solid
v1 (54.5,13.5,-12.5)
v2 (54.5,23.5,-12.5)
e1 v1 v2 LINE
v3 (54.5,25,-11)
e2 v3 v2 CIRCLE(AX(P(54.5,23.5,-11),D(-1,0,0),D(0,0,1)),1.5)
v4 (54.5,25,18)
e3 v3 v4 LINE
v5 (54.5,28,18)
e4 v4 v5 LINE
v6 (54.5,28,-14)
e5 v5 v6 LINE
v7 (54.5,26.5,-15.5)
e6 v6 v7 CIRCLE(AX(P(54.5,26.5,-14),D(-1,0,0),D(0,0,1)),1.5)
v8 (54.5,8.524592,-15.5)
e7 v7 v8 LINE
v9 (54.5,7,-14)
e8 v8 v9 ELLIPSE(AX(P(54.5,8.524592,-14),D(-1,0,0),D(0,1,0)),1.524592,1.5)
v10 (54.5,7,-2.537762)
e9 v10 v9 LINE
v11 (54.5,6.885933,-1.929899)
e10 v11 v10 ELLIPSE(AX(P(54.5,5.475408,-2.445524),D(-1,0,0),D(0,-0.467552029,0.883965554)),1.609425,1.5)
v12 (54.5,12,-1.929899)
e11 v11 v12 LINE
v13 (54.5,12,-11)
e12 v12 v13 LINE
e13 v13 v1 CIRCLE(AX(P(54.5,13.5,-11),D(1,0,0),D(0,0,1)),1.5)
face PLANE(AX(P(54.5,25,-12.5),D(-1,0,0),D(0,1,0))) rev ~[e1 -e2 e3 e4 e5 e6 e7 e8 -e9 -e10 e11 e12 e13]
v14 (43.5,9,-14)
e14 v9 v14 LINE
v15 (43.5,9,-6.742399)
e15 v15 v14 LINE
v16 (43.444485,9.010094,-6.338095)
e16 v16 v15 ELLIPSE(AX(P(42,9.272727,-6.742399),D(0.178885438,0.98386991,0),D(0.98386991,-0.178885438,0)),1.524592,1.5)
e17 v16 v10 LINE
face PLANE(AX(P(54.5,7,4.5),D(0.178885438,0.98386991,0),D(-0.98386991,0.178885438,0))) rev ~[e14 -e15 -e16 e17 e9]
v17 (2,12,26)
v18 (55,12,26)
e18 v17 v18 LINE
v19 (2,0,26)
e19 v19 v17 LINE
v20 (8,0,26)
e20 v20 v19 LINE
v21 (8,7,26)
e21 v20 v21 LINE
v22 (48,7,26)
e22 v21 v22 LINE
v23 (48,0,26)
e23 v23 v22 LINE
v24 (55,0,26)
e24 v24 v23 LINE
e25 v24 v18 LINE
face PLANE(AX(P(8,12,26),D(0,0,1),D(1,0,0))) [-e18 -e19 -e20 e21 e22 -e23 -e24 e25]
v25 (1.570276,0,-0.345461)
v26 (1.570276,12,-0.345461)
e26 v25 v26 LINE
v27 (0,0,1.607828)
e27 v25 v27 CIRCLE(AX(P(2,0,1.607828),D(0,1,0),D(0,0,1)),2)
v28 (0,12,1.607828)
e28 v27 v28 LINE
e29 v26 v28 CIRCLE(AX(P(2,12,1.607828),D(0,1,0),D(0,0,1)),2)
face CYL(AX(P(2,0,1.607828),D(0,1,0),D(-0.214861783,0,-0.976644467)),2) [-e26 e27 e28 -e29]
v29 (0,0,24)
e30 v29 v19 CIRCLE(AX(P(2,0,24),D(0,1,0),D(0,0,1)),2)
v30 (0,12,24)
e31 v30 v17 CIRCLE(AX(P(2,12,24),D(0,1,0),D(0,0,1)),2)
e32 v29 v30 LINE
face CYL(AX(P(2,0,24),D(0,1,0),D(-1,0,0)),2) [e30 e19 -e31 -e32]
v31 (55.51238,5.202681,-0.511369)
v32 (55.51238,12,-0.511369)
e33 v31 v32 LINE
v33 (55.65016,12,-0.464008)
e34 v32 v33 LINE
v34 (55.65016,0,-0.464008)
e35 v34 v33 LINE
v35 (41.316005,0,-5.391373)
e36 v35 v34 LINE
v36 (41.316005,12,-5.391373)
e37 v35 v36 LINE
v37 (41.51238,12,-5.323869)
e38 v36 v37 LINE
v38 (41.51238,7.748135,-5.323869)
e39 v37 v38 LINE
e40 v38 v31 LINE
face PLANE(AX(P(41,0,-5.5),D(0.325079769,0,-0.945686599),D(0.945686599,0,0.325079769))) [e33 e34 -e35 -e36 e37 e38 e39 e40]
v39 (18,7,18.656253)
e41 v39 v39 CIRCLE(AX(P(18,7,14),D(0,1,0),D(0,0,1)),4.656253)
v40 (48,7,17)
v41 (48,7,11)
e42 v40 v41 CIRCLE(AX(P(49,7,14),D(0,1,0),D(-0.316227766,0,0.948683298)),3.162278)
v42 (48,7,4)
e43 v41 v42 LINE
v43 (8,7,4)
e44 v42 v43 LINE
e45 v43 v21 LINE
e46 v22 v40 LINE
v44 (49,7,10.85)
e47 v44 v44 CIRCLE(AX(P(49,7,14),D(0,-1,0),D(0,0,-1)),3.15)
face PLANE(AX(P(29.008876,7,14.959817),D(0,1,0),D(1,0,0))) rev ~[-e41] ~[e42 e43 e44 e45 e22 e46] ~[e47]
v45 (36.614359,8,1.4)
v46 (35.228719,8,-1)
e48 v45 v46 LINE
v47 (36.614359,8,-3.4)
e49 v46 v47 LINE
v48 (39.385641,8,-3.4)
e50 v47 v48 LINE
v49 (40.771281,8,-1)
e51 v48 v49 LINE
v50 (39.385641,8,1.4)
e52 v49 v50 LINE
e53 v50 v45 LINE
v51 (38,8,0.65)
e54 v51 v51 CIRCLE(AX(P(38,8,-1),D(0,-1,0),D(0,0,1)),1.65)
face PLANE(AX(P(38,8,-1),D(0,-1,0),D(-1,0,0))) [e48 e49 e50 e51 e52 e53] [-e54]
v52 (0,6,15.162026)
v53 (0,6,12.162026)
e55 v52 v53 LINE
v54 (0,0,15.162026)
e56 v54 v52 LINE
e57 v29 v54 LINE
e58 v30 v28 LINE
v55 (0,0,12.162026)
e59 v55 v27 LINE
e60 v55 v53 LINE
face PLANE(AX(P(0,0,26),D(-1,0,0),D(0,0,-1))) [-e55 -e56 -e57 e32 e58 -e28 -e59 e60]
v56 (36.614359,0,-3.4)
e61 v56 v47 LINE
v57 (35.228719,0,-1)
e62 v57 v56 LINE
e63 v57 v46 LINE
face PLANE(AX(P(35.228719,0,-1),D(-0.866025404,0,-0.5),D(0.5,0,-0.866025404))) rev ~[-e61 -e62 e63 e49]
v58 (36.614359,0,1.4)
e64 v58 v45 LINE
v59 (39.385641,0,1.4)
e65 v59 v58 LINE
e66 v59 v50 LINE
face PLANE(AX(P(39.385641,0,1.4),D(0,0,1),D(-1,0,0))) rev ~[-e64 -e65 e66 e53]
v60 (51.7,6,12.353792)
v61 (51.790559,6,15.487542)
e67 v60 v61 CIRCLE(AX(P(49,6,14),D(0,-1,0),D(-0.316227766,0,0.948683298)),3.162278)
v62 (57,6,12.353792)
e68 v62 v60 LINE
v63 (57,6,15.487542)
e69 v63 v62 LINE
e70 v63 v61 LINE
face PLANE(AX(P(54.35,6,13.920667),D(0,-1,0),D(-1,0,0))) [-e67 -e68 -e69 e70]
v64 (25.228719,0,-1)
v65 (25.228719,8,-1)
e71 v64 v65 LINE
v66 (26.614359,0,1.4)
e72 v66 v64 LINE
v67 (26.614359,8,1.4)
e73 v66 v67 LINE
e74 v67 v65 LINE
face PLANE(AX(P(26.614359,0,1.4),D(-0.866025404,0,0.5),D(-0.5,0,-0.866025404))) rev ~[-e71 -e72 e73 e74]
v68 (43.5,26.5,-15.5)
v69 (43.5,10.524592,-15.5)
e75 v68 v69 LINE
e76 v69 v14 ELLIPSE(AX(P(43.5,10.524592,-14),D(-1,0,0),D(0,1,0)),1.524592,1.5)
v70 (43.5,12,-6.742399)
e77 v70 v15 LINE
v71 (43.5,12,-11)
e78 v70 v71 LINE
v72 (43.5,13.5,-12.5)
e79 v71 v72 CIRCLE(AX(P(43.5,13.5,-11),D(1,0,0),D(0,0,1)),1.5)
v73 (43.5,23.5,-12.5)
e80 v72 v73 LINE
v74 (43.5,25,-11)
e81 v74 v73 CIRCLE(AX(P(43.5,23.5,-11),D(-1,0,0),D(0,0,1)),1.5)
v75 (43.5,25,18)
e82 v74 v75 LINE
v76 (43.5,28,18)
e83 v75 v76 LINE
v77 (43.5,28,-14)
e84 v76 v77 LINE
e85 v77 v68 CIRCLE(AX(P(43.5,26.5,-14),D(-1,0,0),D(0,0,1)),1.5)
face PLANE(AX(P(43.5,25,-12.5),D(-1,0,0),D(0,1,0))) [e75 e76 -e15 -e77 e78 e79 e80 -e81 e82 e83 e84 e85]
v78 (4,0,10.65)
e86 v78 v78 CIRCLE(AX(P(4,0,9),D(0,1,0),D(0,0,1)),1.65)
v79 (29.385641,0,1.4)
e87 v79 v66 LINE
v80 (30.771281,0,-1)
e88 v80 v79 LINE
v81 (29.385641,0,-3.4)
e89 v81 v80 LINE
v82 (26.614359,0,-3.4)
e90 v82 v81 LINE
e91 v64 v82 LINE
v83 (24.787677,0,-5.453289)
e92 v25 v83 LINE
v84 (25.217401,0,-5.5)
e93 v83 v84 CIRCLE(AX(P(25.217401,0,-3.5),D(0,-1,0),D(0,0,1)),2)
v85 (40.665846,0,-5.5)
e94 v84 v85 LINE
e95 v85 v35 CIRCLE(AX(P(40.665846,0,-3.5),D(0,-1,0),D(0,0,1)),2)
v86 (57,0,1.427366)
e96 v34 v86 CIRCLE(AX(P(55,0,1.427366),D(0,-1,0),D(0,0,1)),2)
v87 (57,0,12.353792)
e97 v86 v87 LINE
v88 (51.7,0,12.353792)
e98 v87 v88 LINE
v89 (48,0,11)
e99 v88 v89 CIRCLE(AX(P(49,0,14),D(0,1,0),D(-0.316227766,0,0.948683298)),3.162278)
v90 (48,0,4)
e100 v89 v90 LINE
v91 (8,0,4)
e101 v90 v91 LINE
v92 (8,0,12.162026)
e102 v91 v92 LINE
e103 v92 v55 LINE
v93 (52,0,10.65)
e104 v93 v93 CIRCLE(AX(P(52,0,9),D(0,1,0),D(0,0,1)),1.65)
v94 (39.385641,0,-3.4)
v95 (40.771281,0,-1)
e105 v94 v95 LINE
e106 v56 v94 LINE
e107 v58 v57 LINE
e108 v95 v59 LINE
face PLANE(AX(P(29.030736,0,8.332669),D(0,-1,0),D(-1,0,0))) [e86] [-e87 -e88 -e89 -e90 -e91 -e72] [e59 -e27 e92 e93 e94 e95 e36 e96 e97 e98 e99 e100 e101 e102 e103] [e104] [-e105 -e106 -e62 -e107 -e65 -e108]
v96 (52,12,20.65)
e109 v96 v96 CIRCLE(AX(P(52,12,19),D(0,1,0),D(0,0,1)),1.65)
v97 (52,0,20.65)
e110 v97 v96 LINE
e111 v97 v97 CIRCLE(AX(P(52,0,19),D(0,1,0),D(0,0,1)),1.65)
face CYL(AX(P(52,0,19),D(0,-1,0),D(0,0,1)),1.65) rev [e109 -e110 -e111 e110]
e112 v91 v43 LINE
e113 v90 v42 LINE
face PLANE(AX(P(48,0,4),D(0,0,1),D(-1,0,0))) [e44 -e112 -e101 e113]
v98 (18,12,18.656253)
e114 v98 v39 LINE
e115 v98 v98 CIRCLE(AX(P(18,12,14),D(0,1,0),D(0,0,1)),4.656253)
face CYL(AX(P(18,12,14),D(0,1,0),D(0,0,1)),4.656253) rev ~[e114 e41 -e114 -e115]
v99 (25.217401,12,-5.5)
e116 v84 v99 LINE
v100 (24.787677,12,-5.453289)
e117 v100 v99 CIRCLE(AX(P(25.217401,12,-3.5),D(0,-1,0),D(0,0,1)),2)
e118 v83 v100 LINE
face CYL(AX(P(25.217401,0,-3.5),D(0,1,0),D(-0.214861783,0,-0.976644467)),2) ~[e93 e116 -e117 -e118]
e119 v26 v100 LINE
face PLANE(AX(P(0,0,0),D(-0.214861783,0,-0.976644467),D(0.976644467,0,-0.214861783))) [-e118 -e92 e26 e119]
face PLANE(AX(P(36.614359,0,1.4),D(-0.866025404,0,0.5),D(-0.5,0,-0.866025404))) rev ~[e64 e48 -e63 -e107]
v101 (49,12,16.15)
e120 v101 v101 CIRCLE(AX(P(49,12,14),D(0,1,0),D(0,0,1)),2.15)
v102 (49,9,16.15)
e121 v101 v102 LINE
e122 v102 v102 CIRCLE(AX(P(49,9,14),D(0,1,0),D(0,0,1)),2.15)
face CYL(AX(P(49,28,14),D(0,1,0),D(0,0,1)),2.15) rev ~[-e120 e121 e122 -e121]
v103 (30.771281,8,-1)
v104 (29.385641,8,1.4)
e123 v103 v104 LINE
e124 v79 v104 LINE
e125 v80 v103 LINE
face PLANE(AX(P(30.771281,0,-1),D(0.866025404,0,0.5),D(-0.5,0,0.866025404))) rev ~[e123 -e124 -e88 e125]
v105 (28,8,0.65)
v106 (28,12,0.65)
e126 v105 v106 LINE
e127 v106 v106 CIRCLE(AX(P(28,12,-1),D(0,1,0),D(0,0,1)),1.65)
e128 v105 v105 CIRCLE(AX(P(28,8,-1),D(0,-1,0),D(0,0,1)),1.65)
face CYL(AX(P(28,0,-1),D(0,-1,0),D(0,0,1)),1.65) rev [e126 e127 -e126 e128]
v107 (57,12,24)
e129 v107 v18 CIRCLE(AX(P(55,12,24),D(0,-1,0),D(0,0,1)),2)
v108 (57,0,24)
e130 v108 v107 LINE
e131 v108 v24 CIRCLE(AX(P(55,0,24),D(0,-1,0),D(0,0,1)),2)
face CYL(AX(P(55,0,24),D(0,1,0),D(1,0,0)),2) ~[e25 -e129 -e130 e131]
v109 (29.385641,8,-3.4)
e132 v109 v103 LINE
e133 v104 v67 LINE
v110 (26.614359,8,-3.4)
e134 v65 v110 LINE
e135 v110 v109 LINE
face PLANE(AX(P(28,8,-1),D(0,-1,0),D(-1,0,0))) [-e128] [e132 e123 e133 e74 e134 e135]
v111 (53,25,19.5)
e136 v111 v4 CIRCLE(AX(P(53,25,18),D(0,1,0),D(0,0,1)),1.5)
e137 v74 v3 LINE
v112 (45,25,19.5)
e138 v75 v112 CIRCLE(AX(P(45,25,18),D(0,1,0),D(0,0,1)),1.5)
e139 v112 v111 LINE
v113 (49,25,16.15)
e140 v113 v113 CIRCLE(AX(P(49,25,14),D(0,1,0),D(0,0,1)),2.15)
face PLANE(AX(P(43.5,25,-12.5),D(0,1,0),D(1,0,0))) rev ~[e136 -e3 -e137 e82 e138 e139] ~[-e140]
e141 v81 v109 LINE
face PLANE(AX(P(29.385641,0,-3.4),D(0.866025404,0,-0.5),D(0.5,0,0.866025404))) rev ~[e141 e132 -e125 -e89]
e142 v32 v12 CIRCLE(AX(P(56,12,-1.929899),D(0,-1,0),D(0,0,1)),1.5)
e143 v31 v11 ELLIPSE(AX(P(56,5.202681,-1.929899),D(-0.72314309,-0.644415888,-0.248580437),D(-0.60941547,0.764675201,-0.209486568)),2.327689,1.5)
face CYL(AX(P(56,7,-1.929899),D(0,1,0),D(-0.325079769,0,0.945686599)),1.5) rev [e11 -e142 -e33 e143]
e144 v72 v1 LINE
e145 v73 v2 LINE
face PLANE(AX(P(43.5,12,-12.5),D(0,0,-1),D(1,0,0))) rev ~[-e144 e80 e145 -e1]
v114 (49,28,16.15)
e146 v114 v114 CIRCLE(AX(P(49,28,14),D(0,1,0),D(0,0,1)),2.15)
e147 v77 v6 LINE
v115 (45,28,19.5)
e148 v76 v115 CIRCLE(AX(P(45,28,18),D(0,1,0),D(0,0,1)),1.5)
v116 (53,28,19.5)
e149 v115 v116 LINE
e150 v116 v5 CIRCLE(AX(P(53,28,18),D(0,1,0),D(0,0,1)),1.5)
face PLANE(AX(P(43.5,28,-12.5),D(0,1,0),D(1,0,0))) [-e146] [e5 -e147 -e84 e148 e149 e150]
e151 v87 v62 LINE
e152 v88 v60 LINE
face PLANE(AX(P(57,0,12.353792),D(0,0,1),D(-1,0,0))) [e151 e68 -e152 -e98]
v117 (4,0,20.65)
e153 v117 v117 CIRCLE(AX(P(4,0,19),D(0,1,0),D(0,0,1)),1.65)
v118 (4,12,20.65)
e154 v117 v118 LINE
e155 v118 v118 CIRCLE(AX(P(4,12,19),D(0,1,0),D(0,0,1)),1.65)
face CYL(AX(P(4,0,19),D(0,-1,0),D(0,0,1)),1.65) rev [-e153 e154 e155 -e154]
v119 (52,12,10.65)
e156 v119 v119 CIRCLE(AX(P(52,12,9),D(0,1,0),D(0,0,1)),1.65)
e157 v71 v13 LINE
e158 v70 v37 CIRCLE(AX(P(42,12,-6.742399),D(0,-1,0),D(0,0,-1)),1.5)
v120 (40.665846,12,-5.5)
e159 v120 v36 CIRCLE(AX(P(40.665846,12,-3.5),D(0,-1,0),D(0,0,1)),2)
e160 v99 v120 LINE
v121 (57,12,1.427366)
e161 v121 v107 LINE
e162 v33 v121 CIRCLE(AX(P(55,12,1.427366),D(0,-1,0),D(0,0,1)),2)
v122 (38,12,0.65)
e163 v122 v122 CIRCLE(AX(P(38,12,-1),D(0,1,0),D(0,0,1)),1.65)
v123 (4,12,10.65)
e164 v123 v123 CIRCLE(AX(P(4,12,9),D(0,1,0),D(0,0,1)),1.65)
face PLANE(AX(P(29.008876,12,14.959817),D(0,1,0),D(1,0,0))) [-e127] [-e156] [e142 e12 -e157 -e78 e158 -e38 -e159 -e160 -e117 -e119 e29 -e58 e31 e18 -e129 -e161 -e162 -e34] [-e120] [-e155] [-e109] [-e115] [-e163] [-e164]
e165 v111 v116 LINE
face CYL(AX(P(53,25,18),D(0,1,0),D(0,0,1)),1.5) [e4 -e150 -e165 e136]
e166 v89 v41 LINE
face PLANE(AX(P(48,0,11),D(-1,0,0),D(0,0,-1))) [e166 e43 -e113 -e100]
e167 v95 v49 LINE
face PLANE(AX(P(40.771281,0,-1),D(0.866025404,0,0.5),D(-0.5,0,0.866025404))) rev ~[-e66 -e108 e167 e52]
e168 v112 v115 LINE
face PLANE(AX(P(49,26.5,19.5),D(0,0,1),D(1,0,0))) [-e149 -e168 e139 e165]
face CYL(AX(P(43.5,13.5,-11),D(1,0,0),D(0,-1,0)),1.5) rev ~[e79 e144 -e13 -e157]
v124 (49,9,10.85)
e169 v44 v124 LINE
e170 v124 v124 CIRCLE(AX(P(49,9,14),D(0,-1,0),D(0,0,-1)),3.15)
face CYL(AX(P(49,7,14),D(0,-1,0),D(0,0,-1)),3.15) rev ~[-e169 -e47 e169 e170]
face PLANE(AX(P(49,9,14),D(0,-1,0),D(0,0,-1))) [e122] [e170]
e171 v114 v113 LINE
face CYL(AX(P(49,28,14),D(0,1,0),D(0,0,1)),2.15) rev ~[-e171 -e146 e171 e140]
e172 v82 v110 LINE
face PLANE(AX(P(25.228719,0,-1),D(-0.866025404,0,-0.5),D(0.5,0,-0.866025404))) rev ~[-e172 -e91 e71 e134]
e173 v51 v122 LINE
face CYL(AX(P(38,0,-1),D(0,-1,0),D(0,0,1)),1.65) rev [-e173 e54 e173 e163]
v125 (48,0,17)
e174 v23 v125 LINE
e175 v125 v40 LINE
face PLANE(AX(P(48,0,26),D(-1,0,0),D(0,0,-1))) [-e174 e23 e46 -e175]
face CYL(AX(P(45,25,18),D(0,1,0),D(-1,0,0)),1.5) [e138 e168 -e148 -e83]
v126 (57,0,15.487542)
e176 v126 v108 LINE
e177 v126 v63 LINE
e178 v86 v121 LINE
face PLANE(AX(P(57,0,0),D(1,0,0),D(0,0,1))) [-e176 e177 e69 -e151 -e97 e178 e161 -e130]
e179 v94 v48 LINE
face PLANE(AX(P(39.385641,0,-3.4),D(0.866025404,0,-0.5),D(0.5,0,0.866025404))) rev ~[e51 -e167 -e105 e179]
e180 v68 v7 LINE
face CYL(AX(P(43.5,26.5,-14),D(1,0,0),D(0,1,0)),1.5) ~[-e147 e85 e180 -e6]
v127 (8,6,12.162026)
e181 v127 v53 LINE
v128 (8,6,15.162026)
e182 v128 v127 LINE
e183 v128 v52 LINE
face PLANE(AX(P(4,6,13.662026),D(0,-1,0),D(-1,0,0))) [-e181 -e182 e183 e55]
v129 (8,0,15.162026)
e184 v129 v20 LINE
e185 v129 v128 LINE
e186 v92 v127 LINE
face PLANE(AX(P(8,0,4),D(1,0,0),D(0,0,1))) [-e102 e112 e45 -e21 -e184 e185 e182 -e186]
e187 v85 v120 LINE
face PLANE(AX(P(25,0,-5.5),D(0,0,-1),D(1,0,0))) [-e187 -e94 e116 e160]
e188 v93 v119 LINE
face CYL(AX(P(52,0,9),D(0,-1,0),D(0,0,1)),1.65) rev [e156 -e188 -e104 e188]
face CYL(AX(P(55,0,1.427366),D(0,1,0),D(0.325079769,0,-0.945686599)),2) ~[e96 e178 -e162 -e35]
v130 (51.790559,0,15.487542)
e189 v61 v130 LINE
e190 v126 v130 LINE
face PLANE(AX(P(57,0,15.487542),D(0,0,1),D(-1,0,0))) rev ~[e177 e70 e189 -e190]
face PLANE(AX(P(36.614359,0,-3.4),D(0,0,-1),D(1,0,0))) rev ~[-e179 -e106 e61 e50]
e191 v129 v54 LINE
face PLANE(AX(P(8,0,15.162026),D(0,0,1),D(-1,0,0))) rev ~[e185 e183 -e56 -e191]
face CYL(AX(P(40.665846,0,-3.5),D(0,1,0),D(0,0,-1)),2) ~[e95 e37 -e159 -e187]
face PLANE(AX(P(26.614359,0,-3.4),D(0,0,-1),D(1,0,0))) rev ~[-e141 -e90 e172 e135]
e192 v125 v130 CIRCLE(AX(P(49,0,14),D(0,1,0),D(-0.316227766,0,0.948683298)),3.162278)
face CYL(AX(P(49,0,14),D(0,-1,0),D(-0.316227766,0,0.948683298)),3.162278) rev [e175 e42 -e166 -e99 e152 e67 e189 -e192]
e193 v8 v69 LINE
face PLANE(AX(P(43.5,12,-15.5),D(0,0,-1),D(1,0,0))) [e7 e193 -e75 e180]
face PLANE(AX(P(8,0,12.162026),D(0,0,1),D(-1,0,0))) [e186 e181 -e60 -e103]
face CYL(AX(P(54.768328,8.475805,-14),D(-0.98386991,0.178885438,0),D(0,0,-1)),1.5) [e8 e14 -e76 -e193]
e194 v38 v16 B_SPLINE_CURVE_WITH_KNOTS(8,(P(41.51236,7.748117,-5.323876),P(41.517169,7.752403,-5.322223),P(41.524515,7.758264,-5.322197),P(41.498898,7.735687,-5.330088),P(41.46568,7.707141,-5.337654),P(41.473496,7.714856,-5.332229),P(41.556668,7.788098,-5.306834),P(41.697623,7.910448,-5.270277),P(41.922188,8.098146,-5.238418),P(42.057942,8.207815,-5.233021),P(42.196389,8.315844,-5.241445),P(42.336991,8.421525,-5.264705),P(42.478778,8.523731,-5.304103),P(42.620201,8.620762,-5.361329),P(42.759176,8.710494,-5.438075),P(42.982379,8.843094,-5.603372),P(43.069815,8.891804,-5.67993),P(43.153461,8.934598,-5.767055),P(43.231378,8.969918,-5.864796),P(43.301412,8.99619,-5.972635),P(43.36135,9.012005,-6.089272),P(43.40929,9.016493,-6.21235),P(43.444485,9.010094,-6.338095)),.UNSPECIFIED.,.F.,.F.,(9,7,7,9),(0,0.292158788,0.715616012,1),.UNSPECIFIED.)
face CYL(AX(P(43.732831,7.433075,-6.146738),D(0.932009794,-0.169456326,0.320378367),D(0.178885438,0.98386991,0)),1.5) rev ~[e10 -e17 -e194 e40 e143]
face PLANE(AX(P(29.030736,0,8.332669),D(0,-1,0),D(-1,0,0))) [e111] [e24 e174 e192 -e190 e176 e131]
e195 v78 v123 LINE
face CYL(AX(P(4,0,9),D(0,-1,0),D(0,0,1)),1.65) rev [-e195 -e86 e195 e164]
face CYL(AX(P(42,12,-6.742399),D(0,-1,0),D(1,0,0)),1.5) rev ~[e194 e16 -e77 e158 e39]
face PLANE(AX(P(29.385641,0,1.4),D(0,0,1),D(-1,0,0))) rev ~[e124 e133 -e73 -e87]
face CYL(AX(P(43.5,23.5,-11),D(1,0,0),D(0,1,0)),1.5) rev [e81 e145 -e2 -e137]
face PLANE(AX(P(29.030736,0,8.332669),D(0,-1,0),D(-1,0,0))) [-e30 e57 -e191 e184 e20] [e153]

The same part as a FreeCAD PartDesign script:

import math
import FreeCAD as App
import Part
import Sketcher
Q = App.Units.Quantity


def edges_at(feature, points):
    """Names of the edges that pass closest to the given points."""
    edges = feature.Shape.Edges
    near = lambda p: min(range(len(edges)), key=lambda i: edges[i].distToShape(Part.Vertex(*p))[0])
    return sorted({f"Edge{near(p) + 1}" for p in points})

doc = App.newDocument("Part")
body = doc.addObject("PartDesign::Body", "Body")

sketch1 = doc.addObject("Sketcher::SketchObject", "Sketch")
body.addObject(sketch1)
sketch1.AttachmentSupport = (doc.XZ_Plane, [""])
sketch1.MapMode = "FlatFace"
sketch1.addGeometry(Part.LineSegment(App.Vector(25, -5.5, 0), App.Vector(0, 0, 0)), False)
sketch1.addGeometry(Part.LineSegment(App.Vector(0, 0, 0), App.Vector(0, 26, 0)), False)
sketch1.addGeometry(Part.LineSegment(App.Vector(0, 26, 0), App.Vector(8, 26, 0)), False)
sketch1.addGeometry(Part.LineSegment(App.Vector(8, 26, 0), App.Vector(8, 4, 0)), False)
sketch1.addGeometry(Part.LineSegment(App.Vector(8, 4, 0), App.Vector(48, 4, 0)), False)
sketch1.addGeometry(Part.LineSegment(App.Vector(48, 4, 0), App.Vector(48, 11, 0)), False)
sketch1.addGeometry(Part.ArcOfCircle(Part.Circle(App.Vector(49, 14, 0), App.Vector(0, 0, 1), 3.2), math.radians(-108), math.radians(108)), False)
sketch1.addGeometry(Part.LineSegment(App.Vector(48, 17, 0), App.Vector(48, 26, 0)), False)
sketch1.addGeometry(Part.LineSegment(App.Vector(48, 26, 0), App.Vector(57, 26, 0)), False)
sketch1.addGeometry(Part.LineSegment(App.Vector(57, 26, 0), App.Vector(57, 0, 0)), False)
sketch1.addGeometry(Part.LineSegment(App.Vector(57, 0, 0), App.Vector(41, -5.5, 0)), False)
sketch1.addGeometry(Part.LineSegment(App.Vector(41, -5.5, 0), App.Vector(25, -5.5, 0)), False)
sketch1.addGeometry(Part.Circle(App.Vector(52, 19, 0), App.Vector(0, 0, 1), 1.6), False)
sketch1.addGeometry(Part.Circle(App.Vector(4, 19, 0), App.Vector(0, 0, 1), 1.6), False)
sketch1.addGeometry(Part.Circle(App.Vector(52, 9, 0), App.Vector(0, 0, 1), 1.6), False)
sketch1.addGeometry(Part.Circle(App.Vector(38, -1, 0), App.Vector(0, 0, 1), 1.6), False)
sketch1.addGeometry(Part.Circle(App.Vector(4, 9, 0), App.Vector(0, 0, 1), 1.6), False)
sketch1.addGeometry(Part.Circle(App.Vector(28, -1, 0), App.Vector(0, 0, 1), 1.6), False)
sketch1.addConstraint(Sketcher.Constraint("Coincident", 0, 2, 1, 1))
sketch1.addConstraint(Sketcher.Constraint("Coincident", 1, 2, 2, 1))
sketch1.addConstraint(Sketcher.Constraint("Coincident", 2, 2, 3, 1))
sketch1.addConstraint(Sketcher.Constraint("Coincident", 3, 2, 4, 1))
sketch1.addConstraint(Sketcher.Constraint("Coincident", 4, 2, 5, 1))
sketch1.addConstraint(Sketcher.Constraint("Coincident", 5, 2, 6, 1))
sketch1.addConstraint(Sketcher.Constraint("Coincident", 6, 2, 7, 1))
sketch1.addConstraint(Sketcher.Constraint("Coincident", 7, 2, 8, 1))
sketch1.addConstraint(Sketcher.Constraint("Coincident", 8, 2, 9, 1))
sketch1.addConstraint(Sketcher.Constraint("Coincident", 9, 2, 10, 1))
sketch1.addConstraint(Sketcher.Constraint("Coincident", 10, 2, 11, 1))
sketch1.addConstraint(Sketcher.Constraint("Coincident", 11, 2, 0, 1))
sketch1.addConstraint(Sketcher.Constraint("Vertical", 1))
sketch1.addConstraint(Sketcher.Constraint("Horizontal", 2))
sketch1.addConstraint(Sketcher.Constraint("Vertical", 3))
sketch1.addConstraint(Sketcher.Constraint("Horizontal", 4))
sketch1.addConstraint(Sketcher.Constraint("Vertical", 5))
sketch1.addConstraint(Sketcher.Constraint("Vertical", 7))
sketch1.addConstraint(Sketcher.Constraint("Horizontal", 8))
sketch1.addConstraint(Sketcher.Constraint("Vertical", 9))
sketch1.addConstraint(Sketcher.Constraint("Horizontal", 11))
sketch1.addConstraint(Sketcher.Constraint("Coincident", 0, 2, -1, 1))
sketch1.addConstraint(Sketcher.Constraint("Equal", 12, 13))
sketch1.addConstraint(Sketcher.Constraint("Equal", 13, 14))
sketch1.addConstraint(Sketcher.Constraint("Equal", 14, 15))
sketch1.addConstraint(Sketcher.Constraint("Equal", 15, 16))
sketch1.addConstraint(Sketcher.Constraint("Equal", 16, 17))
sketch1.addConstraint(Sketcher.Constraint("PointOnObject", 9, 2, -1))
sketch1.addConstraint(Sketcher.Constraint("Horizontal", 12, 3, 13, 3))
sketch1.addConstraint(Sketcher.Constraint("Horizontal", 14, 3, 16, 3))
sketch1.addConstraint(Sketcher.Constraint("Horizontal", 15, 3, 17, 3))
sketch1.addConstraint(Sketcher.Constraint("Horizontal", 2, 2, 7, 2))
sketch1.addConstraint(Sketcher.Constraint("Vertical", 12, 3, 14, 3))
sketch1.addConstraint(Sketcher.Constraint("Vertical", 13, 3, 16, 3))
sketch1.addConstraint(Sketcher.Constraint("Vertical", 5, 2, 6, 2))
sketch1.addConstraint(Sketcher.Constraint("Equal", 8, 7))
sketch1.addConstraint(Sketcher.Constraint("Diameter", 12, Q("3.3 mm")))
sketch1.addConstraint(Sketcher.Constraint("DistanceX", 2, 1, 2, 2, Q("8 mm")))
sketch1.addConstraint(Sketcher.Constraint("DistanceX", 4, 1, 4, 2, Q("40 mm")))
sketch1.addConstraint(Sketcher.Constraint("DistanceX", 8, 1, 8, 2, Q("9 mm")))
sketch1.addConstraint(Sketcher.Constraint("DistanceX", 11, 2, 11, 1, Q("16 mm")))
sketch1.addConstraint(Sketcher.Constraint("DistanceY", 1, 1, 1, 2, Q("26 mm")))
sketch1.addConstraint(Sketcher.Constraint("DistanceY", 3, 2, 3, 1, Q("22 mm")))
sketch1.addConstraint(Sketcher.Constraint("DistanceY", 5, 1, 5, 2, Q("7 mm")))
sketch1.addConstraint(Sketcher.Constraint("DistanceX", -1, 1, 6, 3, Q("49 mm")))
sketch1.addConstraint(Sketcher.Constraint("DistanceX", -1, 1, 12, 3, Q("52 mm")))
sketch1.addConstraint(Sketcher.Constraint("DistanceY", -1, 1, 12, 3, Q("19 mm")))
sketch1.addConstraint(Sketcher.Constraint("DistanceX", -1, 1, 13, 3, Q("4 mm")))
sketch1.addConstraint(Sketcher.Constraint("DistanceY", -1, 1, 14, 3, Q("9 mm")))
sketch1.addConstraint(Sketcher.Constraint("DistanceX", -1, 1, 15, 3, Q("38 mm")))
sketch1.addConstraint(Sketcher.Constraint("DistanceY", 15, 3, -1, 1, Q("1 mm")))
sketch1.addConstraint(Sketcher.Constraint("DistanceX", -1, 1, 17, 3, Q("28 mm")))
sketch1.addConstraint(Sketcher.Constraint("DistanceX", -1, 1, 10, 2, Q("41 mm")))
sketch1.addConstraint(Sketcher.Constraint("DistanceY", 10, 2, -1, 1, Q("5.5 mm")))
pad1 = doc.addObject("PartDesign::Pad", "Pad")
body.addObject(pad1)
pad1.Profile = sketch1
pad1.Length = 12
pad1.Reversed = True

sketch2 = doc.addObject("Sketcher::SketchObject", "Sketch001")
body.addObject(sketch2)
sketch2.AttachmentSupport = (doc.XZ_Plane, [""])
sketch2.MapMode = "FlatFace"
sketch2.addGeometry(Part.LineSegment(App.Vector(26.6, 1.4, 0), App.Vector(25.2, -1, 0)), False)
sketch2.addGeometry(Part.LineSegment(App.Vector(25.2, -1, 0), App.Vector(26.6, -3.4, 0)), False)
sketch2.addGeometry(Part.LineSegment(App.Vector(26.6, -3.4, 0), App.Vector(29.4, -3.4, 0)), False)
sketch2.addGeometry(Part.LineSegment(App.Vector(29.4, -3.4, 0), App.Vector(30.8, -1, 0)), False)
sketch2.addGeometry(Part.LineSegment(App.Vector(30.8, -1, 0), App.Vector(29.4, 1.4, 0)), False)
sketch2.addGeometry(Part.LineSegment(App.Vector(29.4, 1.4, 0), App.Vector(26.6, 1.4, 0)), False)
sketch2.addGeometry(Part.LineSegment(App.Vector(36.6, 1.4, 0), App.Vector(35.2, -1, 0)), False)
sketch2.addGeometry(Part.LineSegment(App.Vector(35.2, -1, 0), App.Vector(36.6, -3.4, 0)), False)
sketch2.addGeometry(Part.LineSegment(App.Vector(36.6, -3.4, 0), App.Vector(39.4, -3.4, 0)), False)
sketch2.addGeometry(Part.LineSegment(App.Vector(39.4, -3.4, 0), App.Vector(40.8, -1, 0)), False)
sketch2.addGeometry(Part.LineSegment(App.Vector(40.8, -1, 0), App.Vector(39.4, 1.4, 0)), False)
sketch2.addGeometry(Part.LineSegment(App.Vector(39.4, 1.4, 0), App.Vector(36.6, 1.4, 0)), False)
sketch2.addConstraint(Sketcher.Constraint("Coincident", 0, 2, 1, 1))
sketch2.addConstraint(Sketcher.Constraint("Coincident", 1, 2, 2, 1))
sketch2.addConstraint(Sketcher.Constraint("Coincident", 2, 2, 3, 1))
sketch2.addConstraint(Sketcher.Constraint("Coincident", 3, 2, 4, 1))
sketch2.addConstraint(Sketcher.Constraint("Coincident", 4, 2, 5, 1))
sketch2.addConstraint(Sketcher.Constraint("Coincident", 5, 2, 0, 1))
sketch2.addConstraint(Sketcher.Constraint("Coincident", 6, 2, 7, 1))
sketch2.addConstraint(Sketcher.Constraint("Coincident", 7, 2, 8, 1))
sketch2.addConstraint(Sketcher.Constraint("Coincident", 8, 2, 9, 1))
sketch2.addConstraint(Sketcher.Constraint("Coincident", 9, 2, 10, 1))
sketch2.addConstraint(Sketcher.Constraint("Coincident", 10, 2, 11, 1))
sketch2.addConstraint(Sketcher.Constraint("Coincident", 11, 2, 6, 1))
sketch2.addConstraint(Sketcher.Constraint("Horizontal", 2))
sketch2.addConstraint(Sketcher.Constraint("Horizontal", 5))
sketch2.addConstraint(Sketcher.Constraint("Horizontal", 8))
sketch2.addConstraint(Sketcher.Constraint("Horizontal", 11))
sketch2.addConstraint(Sketcher.Constraint("Parallel", 0, 3))
sketch2.addConstraint(Sketcher.Constraint("Parallel", 1, 4))
sketch2.addConstraint(Sketcher.Constraint("Parallel", 3, 6))
sketch2.addConstraint(Sketcher.Constraint("Parallel", 4, 7))
sketch2.addConstraint(Sketcher.Constraint("Parallel", 6, 9))
sketch2.addConstraint(Sketcher.Constraint("Parallel", 7, 10))
sketch2.addConstraint(Sketcher.Constraint("Horizontal", 0, 2, 3, 2))
sketch2.addConstraint(Sketcher.Constraint("Horizontal", 3, 2, 6, 2))
sketch2.addConstraint(Sketcher.Constraint("Horizontal", 2, 2, 7, 2))
sketch2.addConstraint(Sketcher.Constraint("Horizontal", 6, 2, 9, 2))
sketch2.addConstraint(Sketcher.Constraint("Horizontal", 5, 2, 10, 2))
sketch2.addConstraint(Sketcher.Constraint("Vertical", 2, 2, 4, 2))
sketch2.addConstraint(Sketcher.Constraint("Vertical", 1, 2, 5, 2))
sketch2.addConstraint(Sketcher.Constraint("Equal", 5, 8))
sketch2.addConstraint(Sketcher.Constraint("Angle", 0, Q("-120 deg")))
sketch2.addConstraint(Sketcher.Constraint("DistanceY", 0, 2, -1, 1, Q("1 mm")))
sketch2.addConstraint(Sketcher.Constraint("DistanceX", 1, 2, 7, 2, Q("10 mm")))
sketch2.addConstraint(Sketcher.Constraint("DistanceY", 1, 2, -1, 1, Q("3.4 mm")))
sketch2.addConstraint(Sketcher.Constraint("DistanceX", 2, 1, 2, 2, Q("2.771281 mm")))
sketch2.addConstraint(Sketcher.Constraint("DistanceX", -1, 1, 0, 2, Q("25.228719 mm")))
pocket1 = doc.addObject("PartDesign::Pocket", "Pocket")
body.addObject(pocket1)
pocket1.Profile = sketch2
pocket1.Length = 8
doc.recompute()

fillet = doc.addObject("PartDesign::Fillet", "Fillet")
body.addObject(fillet)
fillet.Base = (pocket1, edges_at(pocket1, [
    (0, 6, 0),
    (25, 6, -5.5),
    (41, 6, -5.5),
    (57, 6, 0),
    (57, 6, 26),
    (0, 6, 26),
]))
fillet.Radius = 2

sketch3 = doc.addObject("Sketcher::SketchObject", "Sketch002")
body.addObject(sketch3)
sketch3.AttachmentSupport = (doc.XZ_Plane, [""])
sketch3.MapMode = "FlatFace"
sketch3.addGeometry(Part.LineSegment(App.Vector(8, 12.2, 0), App.Vector(8, 15.2, 0)), False)
sketch3.addGeometry(Part.LineSegment(App.Vector(8, 15.2, 0), App.Vector(0, 15.2, 0)), False)
sketch3.addGeometry(Part.LineSegment(App.Vector(0, 15.2, 0), App.Vector(0, 12.2, 0)), False)
sketch3.addGeometry(Part.LineSegment(App.Vector(0, 12.2, 0), App.Vector(8, 12.2, 0)), False)
sketch3.addGeometry(Part.LineSegment(App.Vector(57, 12.4, 0), App.Vector(57, 15.5, 0)), False)
sketch3.addGeometry(Part.LineSegment(App.Vector(57, 15.5, 0), App.Vector(51.7, 15.5, 0)), False)
sketch3.addGeometry(Part.LineSegment(App.Vector(51.7, 15.5, 0), App.Vector(51.7, 12.4, 0)), False)
sketch3.addGeometry(Part.LineSegment(App.Vector(51.7, 12.4, 0), App.Vector(57, 12.4, 0)), False)
sketch3.addConstraint(Sketcher.Constraint("Coincident", 0, 2, 1, 1))
sketch3.addConstraint(Sketcher.Constraint("Coincident", 1, 2, 2, 1))
sketch3.addConstraint(Sketcher.Constraint("Coincident", 2, 2, 3, 1))
sketch3.addConstraint(Sketcher.Constraint("Coincident", 3, 2, 0, 1))
sketch3.addConstraint(Sketcher.Constraint("Coincident", 4, 2, 5, 1))
sketch3.addConstraint(Sketcher.Constraint("Coincident", 5, 2, 6, 1))
sketch3.addConstraint(Sketcher.Constraint("Coincident", 6, 2, 7, 1))
sketch3.addConstraint(Sketcher.Constraint("Coincident", 7, 2, 4, 1))
sketch3.addConstraint(Sketcher.Constraint("Vertical", 0))
sketch3.addConstraint(Sketcher.Constraint("Horizontal", 1))
sketch3.addConstraint(Sketcher.Constraint("Vertical", 2))
sketch3.addConstraint(Sketcher.Constraint("Horizontal", 3))
sketch3.addConstraint(Sketcher.Constraint("Vertical", 4))
sketch3.addConstraint(Sketcher.Constraint("Horizontal", 5))
sketch3.addConstraint(Sketcher.Constraint("Vertical", 6))
sketch3.addConstraint(Sketcher.Constraint("Horizontal", 7))
sketch3.addConstraint(Sketcher.Constraint("PointOnObject", 1, 2, -2))
sketch3.addConstraint(Sketcher.Constraint("DistanceX", 1, 2, 1, 1, Q("8 mm")))
sketch3.addConstraint(Sketcher.Constraint("DistanceY", 0, 1, 0, 2, Q("3 mm")))
sketch3.addConstraint(Sketcher.Constraint("DistanceX", 5, 2, 5, 1, Q("5.3 mm")))
sketch3.addConstraint(Sketcher.Constraint("DistanceX", -1, 1, 4, 2, Q("57 mm")))
sketch3.addConstraint(Sketcher.Constraint("DistanceY", 4, 1, 4, 2, Q("3.13375 mm")))
sketch3.addConstraint(Sketcher.Constraint("DistanceY", -1, 1, 0, 2, Q("15.162026 mm")))
sketch3.addConstraint(Sketcher.Constraint("DistanceY", -1, 1, 4, 2, Q("15.487542 mm")))
pocket2 = doc.addObject("PartDesign::Pocket", "Pocket001")
body.addObject(pocket2)
pocket2.Profile = sketch3
pocket2.Length = 6
body2 = doc.addObject("PartDesign::Body", "Body001")

sketch4 = doc.addObject("Sketcher::SketchObject", "Sketch003")
body2.addObject(sketch4)
sketch4.AttachmentSupport = (doc.getObject("XZ_Plane001"), [""])
sketch4.MapMode = "FlatFace"
sketch4.AttachmentOffset = App.Placement(App.Vector(0, 0, -12), App.Rotation())
sketch4.addGeometry(Part.Circle(App.Vector(28, -1, 0), App.Vector(0, 0, 1), 1.6), False)
sketch4.addConstraint(Sketcher.Constraint("Diameter", 0, Q("3.1 mm")))
sketch4.addConstraint(Sketcher.Constraint("DistanceX", -1, 1, 0, 3, Q("28 mm")))
sketch4.addConstraint(Sketcher.Constraint("DistanceY", 0, 3, -1, 1, Q("1 mm")))
pad2 = doc.addObject("PartDesign::Pad", "Pad001")
body2.addObject(pad2)
pad2.Profile = sketch4
pad2.Length = 5
body3 = doc.addObject("PartDesign::Body", "Body002")

sketch5 = doc.addObject("Sketcher::SketchObject", "Sketch004")
body3.addObject(sketch5)
sketch5.AttachmentSupport = (doc.getObject("XZ_Plane002"), [""])
sketch5.MapMode = "FlatFace"
sketch5.AttachmentOffset = App.Placement(App.Vector(0, 0, -12), App.Rotation())
sketch5.addGeometry(Part.Circle(App.Vector(38, -1, 0), App.Vector(0, 0, 1), 1.6), False)
sketch5.addConstraint(Sketcher.Constraint("Diameter", 0, Q("3.1 mm")))
sketch5.addConstraint(Sketcher.Constraint("DistanceX", -1, 1, 0, 3, Q("38 mm")))
sketch5.addConstraint(Sketcher.Constraint("DistanceY", 0, 3, -1, 1, Q("1 mm")))
pad3 = doc.addObject("PartDesign::Pad", "Pad002")
body3.addObject(pad3)
pad3.Profile = sketch5
pad3.Length = 5
body4 = doc.addObject("PartDesign::Body", "Body003")

sketch6 = doc.addObject("Sketcher::SketchObject", "Sketch005")
body4.addObject(sketch6)
sketch6.AttachmentSupport = (doc.getObject("XZ_Plane003"), [""])
sketch6.MapMode = "FlatFace"
sketch6.AttachmentOffset = App.Placement(App.Vector(0, 0, -12), App.Rotation())
sketch6.addGeometry(Part.LineSegment(App.Vector(48, 11, 0), App.Vector(48, 4, 0)), False)
sketch6.addGeometry(Part.LineSegment(App.Vector(48, 4, 0), App.Vector(8, 4, 0)), False)
sketch6.addGeometry(Part.LineSegment(App.Vector(8, 4, 0), App.Vector(8, 26, 0)), False)
sketch6.addGeometry(Part.LineSegment(App.Vector(8, 26, 0), App.Vector(48, 26, 0)), False)
sketch6.addGeometry(Part.LineSegment(App.Vector(48, 26, 0), App.Vector(48, 17, 0)), False)
sketch6.addGeometry(Part.ArcOfCircle(Part.Circle(App.Vector(49, 14, 0), App.Vector(0, 0, 1), 3.2), math.radians(-108), math.radians(108)), False)
sketch6.addGeometry(Part.Circle(App.Vector(49, 14, 0), App.Vector(0, 0, 1), 1.6), False)
sketch6.addGeometry(Part.Circle(App.Vector(18, 14, 0), App.Vector(0, 0, 1), 4.7), False)
sketch6.addConstraint(Sketcher.Constraint("Coincident", 0, 2, 1, 1))
sketch6.addConstraint(Sketcher.Constraint("Coincident", 1, 2, 2, 1))
sketch6.addConstraint(Sketcher.Constraint("Coincident", 2, 2, 3, 1))
sketch6.addConstraint(Sketcher.Constraint("Coincident", 3, 2, 4, 1))
sketch6.addConstraint(Sketcher.Constraint("Coincident", 4, 2, 5, 2))
sketch6.addConstraint(Sketcher.Constraint("Coincident", 5, 1, 0, 1))
sketch6.addConstraint(Sketcher.Constraint("Vertical", 0))
sketch6.addConstraint(Sketcher.Constraint("Horizontal", 1))
sketch6.addConstraint(Sketcher.Constraint("Vertical", 2))
sketch6.addConstraint(Sketcher.Constraint("Horizontal", 3))
sketch6.addConstraint(Sketcher.Constraint("Vertical", 4))
sketch6.addConstraint(Sketcher.Constraint("Coincident", 6, 3, 5, 3))
sketch6.addConstraint(Sketcher.Constraint("Horizontal", 6, 3, 7, 3))
sketch6.addConstraint(Sketcher.Constraint("Vertical", 0, 2, 3, 2))
sketch6.addConstraint(Sketcher.Constraint("Diameter", 6, Q("3.1 mm")))
sketch6.addConstraint(Sketcher.Constraint("DistanceX", 1, 2, 1, 1, Q("40 mm")))
sketch6.addConstraint(Sketcher.Constraint("DistanceY", 0, 2, 0, 1, Q("7 mm")))
sketch6.addConstraint(Sketcher.Constraint("DistanceY", 2, 1, 2, 2, Q("22 mm")))
sketch6.addConstraint(Sketcher.Constraint("DistanceY", 4, 2, 4, 1, Q("9 mm")))
sketch6.addConstraint(Sketcher.Constraint("DistanceX", -1, 1, 5, 3, Q("49 mm")))
sketch6.addConstraint(Sketcher.Constraint("DistanceY", -1, 1, 5, 3, Q("14 mm")))
sketch6.addConstraint(Sketcher.Constraint("DistanceX", -1, 1, 7, 3, Q("18 mm")))
sketch6.addConstraint(Sketcher.Constraint("DistanceX", -1, 1, 0, 2, Q("48 mm")))
sketch6.addConstraint(Sketcher.Constraint("Diameter", 7, Q("9.312507 mm")))
pad4 = doc.addObject("PartDesign::Pad", "Pad003")
body4.addObject(pad4)
pad4.Profile = sketch6
pad4.Length = 5

sketch7 = doc.addObject("Sketcher::SketchObject", "Sketch006")
body4.addObject(sketch7)
sketch7.AttachmentSupport = (doc.getObject("XZ_Plane003"), [""])
sketch7.MapMode = "FlatFace"
sketch7.AttachmentOffset = App.Placement(App.Vector(0, 0, -7), App.Rotation())
sketch7.addGeometry(Part.Circle(App.Vector(49, 14, 0), App.Vector(0, 0, 1), 3.1), False)
sketch7.addConstraint(Sketcher.Constraint("Diameter", 0, Q("6.3 mm")))
sketch7.addConstraint(Sketcher.Constraint("DistanceX", -1, 1, 0, 3, Q("49 mm")))
sketch7.addConstraint(Sketcher.Constraint("DistanceY", -1, 1, 0, 3, Q("14 mm")))
pocket3 = doc.addObject("PartDesign::Pocket", "Pocket002")
body4.addObject(pocket3)
pocket3.Profile = sketch7
pocket3.Length = 2
body5 = doc.addObject("PartDesign::Body", "Body004")
body5.AllowCompound = True

sketch8 = doc.addObject("Sketcher::SketchObject", "Sketch007")
body5.addObject(sketch8)
sketch8.AttachmentSupport = (doc.getObject("XZ_Plane004"), [""])
sketch8.MapMode = "FlatFace"
sketch8.AttachmentOffset = App.Placement(App.Vector(0, 0, -7), App.Rotation())
sketch8.addGeometry(Part.Circle(App.Vector(28, -1, 0), App.Vector(0, 0, 1), 1.6), False)
sketch8.addGeometry(Part.Circle(App.Vector(38, -1, 0), App.Vector(0, 0, 1), 1.6), False)
sketch8.addConstraint(Sketcher.Constraint("Equal", 0, 1))
sketch8.addConstraint(Sketcher.Constraint("Horizontal", 0, 3, 1, 3))
sketch8.addConstraint(Sketcher.Constraint("Diameter", 0, Q("3.1 mm")))
sketch8.addConstraint(Sketcher.Constraint("DistanceX", -1, 1, 0, 3, Q("28 mm")))
sketch8.addConstraint(Sketcher.Constraint("DistanceY", 0, 3, -1, 1, Q("1 mm")))
sketch8.addConstraint(Sketcher.Constraint("DistanceX", -1, 1, 1, 3, Q("38 mm")))
pad5 = doc.addObject("PartDesign::Pad", "Pad004")
body5.addObject(pad5)
pad5.Profile = sketch8
pad5.Length = 10
pad5.Reversed = True
doc.recompute()

body6 = doc.addObject("PartDesign::Body", "Body005")
body6.BaseFeature = body5
boolean = doc.addObject("PartDesign::Boolean", "Boolean")
body2.addObject(boolean)
boolean.Type = "Cut"
boolean.addObjects([body6])
doc.recompute()

boolean2 = doc.addObject("PartDesign::Boolean", "Boolean001")
body3.addObject(boolean2)
boolean2.Type = "Cut"
boolean2.addObjects([body5])
doc.recompute()

boolean3 = doc.addObject("PartDesign::Boolean", "Boolean002")
body.addObject(boolean3)
boolean3.Type = "Fuse"
boolean3.addObjects([body4])

sketch9 = doc.addObject("Sketcher::SketchObject", "Sketch008")
body.addObject(sketch9)
sketch9.AttachmentSupport = (doc.XY_Plane, [""])
sketch9.MapMode = "FlatFace"
sketch9.AttachmentOffset = App.Placement(App.Vector(0, 0, -5.5), App.Rotation())
sketch9.addGeometry(Part.LineSegment(App.Vector(43.5, 12, 0), App.Vector(54.5, 12, 0)), False)
sketch9.addGeometry(Part.LineSegment(App.Vector(54.5, 12, 0), App.Vector(54.5, 7, 0)), False)
sketch9.addGeometry(Part.LineSegment(App.Vector(54.5, 7, 0), App.Vector(43.5, 9, 0)), False)
sketch9.addGeometry(Part.LineSegment(App.Vector(43.5, 9, 0), App.Vector(43.5, 12, 0)), False)
sketch9.addConstraint(Sketcher.Constraint("Coincident", 0, 2, 1, 1))
sketch9.addConstraint(Sketcher.Constraint("Coincident", 1, 2, 2, 1))
sketch9.addConstraint(Sketcher.Constraint("Coincident", 2, 2, 3, 1))
sketch9.addConstraint(Sketcher.Constraint("Coincident", 3, 2, 0, 1))
sketch9.addConstraint(Sketcher.Constraint("Horizontal", 0))
sketch9.addConstraint(Sketcher.Constraint("Vertical", 1))
sketch9.addConstraint(Sketcher.Constraint("Vertical", 3))
sketch9.addConstraint(Sketcher.Constraint("DistanceX", 0, 1, 0, 2, Q("11 mm")))
sketch9.addConstraint(Sketcher.Constraint("DistanceY", 1, 2, 1, 1, Q("5 mm")))
sketch9.addConstraint(Sketcher.Constraint("DistanceY", 3, 1, 3, 2, Q("3 mm")))
sketch9.addConstraint(Sketcher.Constraint("DistanceY", -1, 1, 0, 2, Q("12 mm")))
sketch9.addConstraint(Sketcher.Constraint("DistanceX", -1, 1, 0, 2, Q("54.5 mm")))
pad6 = doc.addObject("PartDesign::Pad", "Pad005")
body.addObject(pad6)
pad6.Profile = sketch9
pad6.Type = "TwoLengths"
pad6.Length = 10
pad6.Length2 = 10
pad6.Reversed = True

sketch10 = doc.addObject("Sketcher::SketchObject", "Sketch009")
body.addObject(sketch10)
sketch10.AttachmentSupport = (doc.XZ_Plane, [""])
sketch10.MapMode = "FlatFace"
sketch10.AttachmentOffset = App.Placement(App.Vector(0, 0, -12), App.Rotation())
sketch10.addGeometry(Part.LineSegment(App.Vector(43.5, -15.5, 0), App.Vector(43.5, -12.5, 0)), False)
sketch10.addGeometry(Part.LineSegment(App.Vector(43.5, -12.5, 0), App.Vector(54.5, -12.5, 0)), False)
sketch10.addGeometry(Part.LineSegment(App.Vector(54.5, -12.5, 0), App.Vector(54.5, -15.5, 0)), False)
sketch10.addGeometry(Part.LineSegment(App.Vector(54.5, -15.5, 0), App.Vector(43.5, -15.5, 0)), False)
sketch10.addConstraint(Sketcher.Constraint("Coincident", 0, 2, 1, 1))
sketch10.addConstraint(Sketcher.Constraint("Coincident", 1, 2, 2, 1))
sketch10.addConstraint(Sketcher.Constraint("Coincident", 2, 2, 3, 1))
sketch10.addConstraint(Sketcher.Constraint("Coincident", 3, 2, 0, 1))
sketch10.addConstraint(Sketcher.Constraint("Vertical", 0))
sketch10.addConstraint(Sketcher.Constraint("Horizontal", 1))
sketch10.addConstraint(Sketcher.Constraint("Vertical", 2))
sketch10.addConstraint(Sketcher.Constraint("Horizontal", 3))
sketch10.addConstraint(Sketcher.Constraint("DistanceX", 1, 1, 1, 2, Q("11 mm")))
sketch10.addConstraint(Sketcher.Constraint("DistanceY", 0, 1, 0, 2, Q("3 mm")))
sketch10.addConstraint(Sketcher.Constraint("DistanceX", -1, 1, 0, 2, Q("43.5 mm")))
sketch10.addConstraint(Sketcher.Constraint("DistanceY", 0, 2, -1, 1, Q("12.5 mm")))
pad7 = doc.addObject("PartDesign::Pad", "Pad006")
body.addObject(pad7)
pad7.Profile = sketch10
pad7.Length = 16
pad7.Reversed = True

sketch11 = doc.addObject("Sketcher::SketchObject", "Sketch010")
body.addObject(sketch11)
sketch11.AttachmentSupport = (doc.XY_Plane, [""])
sketch11.MapMode = "FlatFace"
sketch11.AttachmentOffset = App.Placement(App.Vector(0, 0, -12.5), App.Rotation())
sketch11.addGeometry(Part.LineSegment(App.Vector(43.5, 28, 0), App.Vector(43.5, 25, 0)), False)
sketch11.addGeometry(Part.LineSegment(App.Vector(43.5, 25, 0), App.Vector(54.5, 25, 0)), False)
sketch11.addGeometry(Part.LineSegment(App.Vector(54.5, 25, 0), App.Vector(54.5, 28, 0)), False)
sketch11.addGeometry(Part.LineSegment(App.Vector(54.5, 28, 0), App.Vector(43.5, 28, 0)), False)
sketch11.addConstraint(Sketcher.Constraint("Coincident", 0, 2, 1, 1))
sketch11.addConstraint(Sketcher.Constraint("Coincident", 1, 2, 2, 1))
sketch11.addConstraint(Sketcher.Constraint("Coincident", 2, 2, 3, 1))
sketch11.addConstraint(Sketcher.Constraint("Coincident", 3, 2, 0, 1))
sketch11.addConstraint(Sketcher.Constraint("Vertical", 0))
sketch11.addConstraint(Sketcher.Constraint("Horizontal", 1))
sketch11.addConstraint(Sketcher.Constraint("Vertical", 2))
sketch11.addConstraint(Sketcher.Constraint("Horizontal", 3))
sketch11.addConstraint(Sketcher.Constraint("DistanceX", 1, 1, 1, 2, Q("11 mm")))
sketch11.addConstraint(Sketcher.Constraint("DistanceY", 0, 2, 0, 1, Q("3 mm")))
sketch11.addConstraint(Sketcher.Constraint("DistanceY", -1, 1, 0, 2, Q("25 mm")))
sketch11.addConstraint(Sketcher.Constraint("DistanceX", -1, 1, 0, 2, Q("43.5 mm")))
pad8 = doc.addObject("PartDesign::Pad", "Pad007")
body.addObject(pad8)
pad8.Profile = sketch11
pad8.Length = 32

sketch12 = doc.addObject("Sketcher::SketchObject", "Sketch011")
body.addObject(sketch12)
sketch12.AttachmentSupport = (doc.XZ_Plane, [""])
sketch12.MapMode = "FlatFace"
sketch12.AttachmentOffset = App.Placement(App.Vector(0, 0, -28), App.Rotation())
sketch12.addGeometry(Part.Circle(App.Vector(49, 14, 0), App.Vector(0, 0, 1), 2.1), False)
sketch12.addConstraint(Sketcher.Constraint("Diameter", 0, Q("4.3 mm")))
sketch12.addConstraint(Sketcher.Constraint("DistanceX", -1, 1, 0, 3, Q("49 mm")))
sketch12.addConstraint(Sketcher.Constraint("DistanceY", -1, 1, 0, 3, Q("14 mm")))
pocket4 = doc.addObject("PartDesign::Pocket", "Pocket003")
body.addObject(pocket4)
pocket4.Profile = sketch12
pocket4.Length = 22
pocket4.Reversed = True
doc.recompute()

fillet2 = doc.addObject("PartDesign::Fillet", "Fillet001")
body.addObject(fillet2)
fillet2.Base = (pocket4, edges_at(pocket4, [
    (49, 12, -12.5),
    (49, 28, -15.5),
    (49, 25, -12.5),
    (43.5, 26.5, 19.5),
    (54.5, 26.5, 19.5),
    (49, 8, -15.5),
    (54.5, 9.5, -0.859),
    (49, 8, -2.75),
    (43.5, 10.5, -4.641),
]))
fillet2.Radius = 1.5

doc.recompute()
